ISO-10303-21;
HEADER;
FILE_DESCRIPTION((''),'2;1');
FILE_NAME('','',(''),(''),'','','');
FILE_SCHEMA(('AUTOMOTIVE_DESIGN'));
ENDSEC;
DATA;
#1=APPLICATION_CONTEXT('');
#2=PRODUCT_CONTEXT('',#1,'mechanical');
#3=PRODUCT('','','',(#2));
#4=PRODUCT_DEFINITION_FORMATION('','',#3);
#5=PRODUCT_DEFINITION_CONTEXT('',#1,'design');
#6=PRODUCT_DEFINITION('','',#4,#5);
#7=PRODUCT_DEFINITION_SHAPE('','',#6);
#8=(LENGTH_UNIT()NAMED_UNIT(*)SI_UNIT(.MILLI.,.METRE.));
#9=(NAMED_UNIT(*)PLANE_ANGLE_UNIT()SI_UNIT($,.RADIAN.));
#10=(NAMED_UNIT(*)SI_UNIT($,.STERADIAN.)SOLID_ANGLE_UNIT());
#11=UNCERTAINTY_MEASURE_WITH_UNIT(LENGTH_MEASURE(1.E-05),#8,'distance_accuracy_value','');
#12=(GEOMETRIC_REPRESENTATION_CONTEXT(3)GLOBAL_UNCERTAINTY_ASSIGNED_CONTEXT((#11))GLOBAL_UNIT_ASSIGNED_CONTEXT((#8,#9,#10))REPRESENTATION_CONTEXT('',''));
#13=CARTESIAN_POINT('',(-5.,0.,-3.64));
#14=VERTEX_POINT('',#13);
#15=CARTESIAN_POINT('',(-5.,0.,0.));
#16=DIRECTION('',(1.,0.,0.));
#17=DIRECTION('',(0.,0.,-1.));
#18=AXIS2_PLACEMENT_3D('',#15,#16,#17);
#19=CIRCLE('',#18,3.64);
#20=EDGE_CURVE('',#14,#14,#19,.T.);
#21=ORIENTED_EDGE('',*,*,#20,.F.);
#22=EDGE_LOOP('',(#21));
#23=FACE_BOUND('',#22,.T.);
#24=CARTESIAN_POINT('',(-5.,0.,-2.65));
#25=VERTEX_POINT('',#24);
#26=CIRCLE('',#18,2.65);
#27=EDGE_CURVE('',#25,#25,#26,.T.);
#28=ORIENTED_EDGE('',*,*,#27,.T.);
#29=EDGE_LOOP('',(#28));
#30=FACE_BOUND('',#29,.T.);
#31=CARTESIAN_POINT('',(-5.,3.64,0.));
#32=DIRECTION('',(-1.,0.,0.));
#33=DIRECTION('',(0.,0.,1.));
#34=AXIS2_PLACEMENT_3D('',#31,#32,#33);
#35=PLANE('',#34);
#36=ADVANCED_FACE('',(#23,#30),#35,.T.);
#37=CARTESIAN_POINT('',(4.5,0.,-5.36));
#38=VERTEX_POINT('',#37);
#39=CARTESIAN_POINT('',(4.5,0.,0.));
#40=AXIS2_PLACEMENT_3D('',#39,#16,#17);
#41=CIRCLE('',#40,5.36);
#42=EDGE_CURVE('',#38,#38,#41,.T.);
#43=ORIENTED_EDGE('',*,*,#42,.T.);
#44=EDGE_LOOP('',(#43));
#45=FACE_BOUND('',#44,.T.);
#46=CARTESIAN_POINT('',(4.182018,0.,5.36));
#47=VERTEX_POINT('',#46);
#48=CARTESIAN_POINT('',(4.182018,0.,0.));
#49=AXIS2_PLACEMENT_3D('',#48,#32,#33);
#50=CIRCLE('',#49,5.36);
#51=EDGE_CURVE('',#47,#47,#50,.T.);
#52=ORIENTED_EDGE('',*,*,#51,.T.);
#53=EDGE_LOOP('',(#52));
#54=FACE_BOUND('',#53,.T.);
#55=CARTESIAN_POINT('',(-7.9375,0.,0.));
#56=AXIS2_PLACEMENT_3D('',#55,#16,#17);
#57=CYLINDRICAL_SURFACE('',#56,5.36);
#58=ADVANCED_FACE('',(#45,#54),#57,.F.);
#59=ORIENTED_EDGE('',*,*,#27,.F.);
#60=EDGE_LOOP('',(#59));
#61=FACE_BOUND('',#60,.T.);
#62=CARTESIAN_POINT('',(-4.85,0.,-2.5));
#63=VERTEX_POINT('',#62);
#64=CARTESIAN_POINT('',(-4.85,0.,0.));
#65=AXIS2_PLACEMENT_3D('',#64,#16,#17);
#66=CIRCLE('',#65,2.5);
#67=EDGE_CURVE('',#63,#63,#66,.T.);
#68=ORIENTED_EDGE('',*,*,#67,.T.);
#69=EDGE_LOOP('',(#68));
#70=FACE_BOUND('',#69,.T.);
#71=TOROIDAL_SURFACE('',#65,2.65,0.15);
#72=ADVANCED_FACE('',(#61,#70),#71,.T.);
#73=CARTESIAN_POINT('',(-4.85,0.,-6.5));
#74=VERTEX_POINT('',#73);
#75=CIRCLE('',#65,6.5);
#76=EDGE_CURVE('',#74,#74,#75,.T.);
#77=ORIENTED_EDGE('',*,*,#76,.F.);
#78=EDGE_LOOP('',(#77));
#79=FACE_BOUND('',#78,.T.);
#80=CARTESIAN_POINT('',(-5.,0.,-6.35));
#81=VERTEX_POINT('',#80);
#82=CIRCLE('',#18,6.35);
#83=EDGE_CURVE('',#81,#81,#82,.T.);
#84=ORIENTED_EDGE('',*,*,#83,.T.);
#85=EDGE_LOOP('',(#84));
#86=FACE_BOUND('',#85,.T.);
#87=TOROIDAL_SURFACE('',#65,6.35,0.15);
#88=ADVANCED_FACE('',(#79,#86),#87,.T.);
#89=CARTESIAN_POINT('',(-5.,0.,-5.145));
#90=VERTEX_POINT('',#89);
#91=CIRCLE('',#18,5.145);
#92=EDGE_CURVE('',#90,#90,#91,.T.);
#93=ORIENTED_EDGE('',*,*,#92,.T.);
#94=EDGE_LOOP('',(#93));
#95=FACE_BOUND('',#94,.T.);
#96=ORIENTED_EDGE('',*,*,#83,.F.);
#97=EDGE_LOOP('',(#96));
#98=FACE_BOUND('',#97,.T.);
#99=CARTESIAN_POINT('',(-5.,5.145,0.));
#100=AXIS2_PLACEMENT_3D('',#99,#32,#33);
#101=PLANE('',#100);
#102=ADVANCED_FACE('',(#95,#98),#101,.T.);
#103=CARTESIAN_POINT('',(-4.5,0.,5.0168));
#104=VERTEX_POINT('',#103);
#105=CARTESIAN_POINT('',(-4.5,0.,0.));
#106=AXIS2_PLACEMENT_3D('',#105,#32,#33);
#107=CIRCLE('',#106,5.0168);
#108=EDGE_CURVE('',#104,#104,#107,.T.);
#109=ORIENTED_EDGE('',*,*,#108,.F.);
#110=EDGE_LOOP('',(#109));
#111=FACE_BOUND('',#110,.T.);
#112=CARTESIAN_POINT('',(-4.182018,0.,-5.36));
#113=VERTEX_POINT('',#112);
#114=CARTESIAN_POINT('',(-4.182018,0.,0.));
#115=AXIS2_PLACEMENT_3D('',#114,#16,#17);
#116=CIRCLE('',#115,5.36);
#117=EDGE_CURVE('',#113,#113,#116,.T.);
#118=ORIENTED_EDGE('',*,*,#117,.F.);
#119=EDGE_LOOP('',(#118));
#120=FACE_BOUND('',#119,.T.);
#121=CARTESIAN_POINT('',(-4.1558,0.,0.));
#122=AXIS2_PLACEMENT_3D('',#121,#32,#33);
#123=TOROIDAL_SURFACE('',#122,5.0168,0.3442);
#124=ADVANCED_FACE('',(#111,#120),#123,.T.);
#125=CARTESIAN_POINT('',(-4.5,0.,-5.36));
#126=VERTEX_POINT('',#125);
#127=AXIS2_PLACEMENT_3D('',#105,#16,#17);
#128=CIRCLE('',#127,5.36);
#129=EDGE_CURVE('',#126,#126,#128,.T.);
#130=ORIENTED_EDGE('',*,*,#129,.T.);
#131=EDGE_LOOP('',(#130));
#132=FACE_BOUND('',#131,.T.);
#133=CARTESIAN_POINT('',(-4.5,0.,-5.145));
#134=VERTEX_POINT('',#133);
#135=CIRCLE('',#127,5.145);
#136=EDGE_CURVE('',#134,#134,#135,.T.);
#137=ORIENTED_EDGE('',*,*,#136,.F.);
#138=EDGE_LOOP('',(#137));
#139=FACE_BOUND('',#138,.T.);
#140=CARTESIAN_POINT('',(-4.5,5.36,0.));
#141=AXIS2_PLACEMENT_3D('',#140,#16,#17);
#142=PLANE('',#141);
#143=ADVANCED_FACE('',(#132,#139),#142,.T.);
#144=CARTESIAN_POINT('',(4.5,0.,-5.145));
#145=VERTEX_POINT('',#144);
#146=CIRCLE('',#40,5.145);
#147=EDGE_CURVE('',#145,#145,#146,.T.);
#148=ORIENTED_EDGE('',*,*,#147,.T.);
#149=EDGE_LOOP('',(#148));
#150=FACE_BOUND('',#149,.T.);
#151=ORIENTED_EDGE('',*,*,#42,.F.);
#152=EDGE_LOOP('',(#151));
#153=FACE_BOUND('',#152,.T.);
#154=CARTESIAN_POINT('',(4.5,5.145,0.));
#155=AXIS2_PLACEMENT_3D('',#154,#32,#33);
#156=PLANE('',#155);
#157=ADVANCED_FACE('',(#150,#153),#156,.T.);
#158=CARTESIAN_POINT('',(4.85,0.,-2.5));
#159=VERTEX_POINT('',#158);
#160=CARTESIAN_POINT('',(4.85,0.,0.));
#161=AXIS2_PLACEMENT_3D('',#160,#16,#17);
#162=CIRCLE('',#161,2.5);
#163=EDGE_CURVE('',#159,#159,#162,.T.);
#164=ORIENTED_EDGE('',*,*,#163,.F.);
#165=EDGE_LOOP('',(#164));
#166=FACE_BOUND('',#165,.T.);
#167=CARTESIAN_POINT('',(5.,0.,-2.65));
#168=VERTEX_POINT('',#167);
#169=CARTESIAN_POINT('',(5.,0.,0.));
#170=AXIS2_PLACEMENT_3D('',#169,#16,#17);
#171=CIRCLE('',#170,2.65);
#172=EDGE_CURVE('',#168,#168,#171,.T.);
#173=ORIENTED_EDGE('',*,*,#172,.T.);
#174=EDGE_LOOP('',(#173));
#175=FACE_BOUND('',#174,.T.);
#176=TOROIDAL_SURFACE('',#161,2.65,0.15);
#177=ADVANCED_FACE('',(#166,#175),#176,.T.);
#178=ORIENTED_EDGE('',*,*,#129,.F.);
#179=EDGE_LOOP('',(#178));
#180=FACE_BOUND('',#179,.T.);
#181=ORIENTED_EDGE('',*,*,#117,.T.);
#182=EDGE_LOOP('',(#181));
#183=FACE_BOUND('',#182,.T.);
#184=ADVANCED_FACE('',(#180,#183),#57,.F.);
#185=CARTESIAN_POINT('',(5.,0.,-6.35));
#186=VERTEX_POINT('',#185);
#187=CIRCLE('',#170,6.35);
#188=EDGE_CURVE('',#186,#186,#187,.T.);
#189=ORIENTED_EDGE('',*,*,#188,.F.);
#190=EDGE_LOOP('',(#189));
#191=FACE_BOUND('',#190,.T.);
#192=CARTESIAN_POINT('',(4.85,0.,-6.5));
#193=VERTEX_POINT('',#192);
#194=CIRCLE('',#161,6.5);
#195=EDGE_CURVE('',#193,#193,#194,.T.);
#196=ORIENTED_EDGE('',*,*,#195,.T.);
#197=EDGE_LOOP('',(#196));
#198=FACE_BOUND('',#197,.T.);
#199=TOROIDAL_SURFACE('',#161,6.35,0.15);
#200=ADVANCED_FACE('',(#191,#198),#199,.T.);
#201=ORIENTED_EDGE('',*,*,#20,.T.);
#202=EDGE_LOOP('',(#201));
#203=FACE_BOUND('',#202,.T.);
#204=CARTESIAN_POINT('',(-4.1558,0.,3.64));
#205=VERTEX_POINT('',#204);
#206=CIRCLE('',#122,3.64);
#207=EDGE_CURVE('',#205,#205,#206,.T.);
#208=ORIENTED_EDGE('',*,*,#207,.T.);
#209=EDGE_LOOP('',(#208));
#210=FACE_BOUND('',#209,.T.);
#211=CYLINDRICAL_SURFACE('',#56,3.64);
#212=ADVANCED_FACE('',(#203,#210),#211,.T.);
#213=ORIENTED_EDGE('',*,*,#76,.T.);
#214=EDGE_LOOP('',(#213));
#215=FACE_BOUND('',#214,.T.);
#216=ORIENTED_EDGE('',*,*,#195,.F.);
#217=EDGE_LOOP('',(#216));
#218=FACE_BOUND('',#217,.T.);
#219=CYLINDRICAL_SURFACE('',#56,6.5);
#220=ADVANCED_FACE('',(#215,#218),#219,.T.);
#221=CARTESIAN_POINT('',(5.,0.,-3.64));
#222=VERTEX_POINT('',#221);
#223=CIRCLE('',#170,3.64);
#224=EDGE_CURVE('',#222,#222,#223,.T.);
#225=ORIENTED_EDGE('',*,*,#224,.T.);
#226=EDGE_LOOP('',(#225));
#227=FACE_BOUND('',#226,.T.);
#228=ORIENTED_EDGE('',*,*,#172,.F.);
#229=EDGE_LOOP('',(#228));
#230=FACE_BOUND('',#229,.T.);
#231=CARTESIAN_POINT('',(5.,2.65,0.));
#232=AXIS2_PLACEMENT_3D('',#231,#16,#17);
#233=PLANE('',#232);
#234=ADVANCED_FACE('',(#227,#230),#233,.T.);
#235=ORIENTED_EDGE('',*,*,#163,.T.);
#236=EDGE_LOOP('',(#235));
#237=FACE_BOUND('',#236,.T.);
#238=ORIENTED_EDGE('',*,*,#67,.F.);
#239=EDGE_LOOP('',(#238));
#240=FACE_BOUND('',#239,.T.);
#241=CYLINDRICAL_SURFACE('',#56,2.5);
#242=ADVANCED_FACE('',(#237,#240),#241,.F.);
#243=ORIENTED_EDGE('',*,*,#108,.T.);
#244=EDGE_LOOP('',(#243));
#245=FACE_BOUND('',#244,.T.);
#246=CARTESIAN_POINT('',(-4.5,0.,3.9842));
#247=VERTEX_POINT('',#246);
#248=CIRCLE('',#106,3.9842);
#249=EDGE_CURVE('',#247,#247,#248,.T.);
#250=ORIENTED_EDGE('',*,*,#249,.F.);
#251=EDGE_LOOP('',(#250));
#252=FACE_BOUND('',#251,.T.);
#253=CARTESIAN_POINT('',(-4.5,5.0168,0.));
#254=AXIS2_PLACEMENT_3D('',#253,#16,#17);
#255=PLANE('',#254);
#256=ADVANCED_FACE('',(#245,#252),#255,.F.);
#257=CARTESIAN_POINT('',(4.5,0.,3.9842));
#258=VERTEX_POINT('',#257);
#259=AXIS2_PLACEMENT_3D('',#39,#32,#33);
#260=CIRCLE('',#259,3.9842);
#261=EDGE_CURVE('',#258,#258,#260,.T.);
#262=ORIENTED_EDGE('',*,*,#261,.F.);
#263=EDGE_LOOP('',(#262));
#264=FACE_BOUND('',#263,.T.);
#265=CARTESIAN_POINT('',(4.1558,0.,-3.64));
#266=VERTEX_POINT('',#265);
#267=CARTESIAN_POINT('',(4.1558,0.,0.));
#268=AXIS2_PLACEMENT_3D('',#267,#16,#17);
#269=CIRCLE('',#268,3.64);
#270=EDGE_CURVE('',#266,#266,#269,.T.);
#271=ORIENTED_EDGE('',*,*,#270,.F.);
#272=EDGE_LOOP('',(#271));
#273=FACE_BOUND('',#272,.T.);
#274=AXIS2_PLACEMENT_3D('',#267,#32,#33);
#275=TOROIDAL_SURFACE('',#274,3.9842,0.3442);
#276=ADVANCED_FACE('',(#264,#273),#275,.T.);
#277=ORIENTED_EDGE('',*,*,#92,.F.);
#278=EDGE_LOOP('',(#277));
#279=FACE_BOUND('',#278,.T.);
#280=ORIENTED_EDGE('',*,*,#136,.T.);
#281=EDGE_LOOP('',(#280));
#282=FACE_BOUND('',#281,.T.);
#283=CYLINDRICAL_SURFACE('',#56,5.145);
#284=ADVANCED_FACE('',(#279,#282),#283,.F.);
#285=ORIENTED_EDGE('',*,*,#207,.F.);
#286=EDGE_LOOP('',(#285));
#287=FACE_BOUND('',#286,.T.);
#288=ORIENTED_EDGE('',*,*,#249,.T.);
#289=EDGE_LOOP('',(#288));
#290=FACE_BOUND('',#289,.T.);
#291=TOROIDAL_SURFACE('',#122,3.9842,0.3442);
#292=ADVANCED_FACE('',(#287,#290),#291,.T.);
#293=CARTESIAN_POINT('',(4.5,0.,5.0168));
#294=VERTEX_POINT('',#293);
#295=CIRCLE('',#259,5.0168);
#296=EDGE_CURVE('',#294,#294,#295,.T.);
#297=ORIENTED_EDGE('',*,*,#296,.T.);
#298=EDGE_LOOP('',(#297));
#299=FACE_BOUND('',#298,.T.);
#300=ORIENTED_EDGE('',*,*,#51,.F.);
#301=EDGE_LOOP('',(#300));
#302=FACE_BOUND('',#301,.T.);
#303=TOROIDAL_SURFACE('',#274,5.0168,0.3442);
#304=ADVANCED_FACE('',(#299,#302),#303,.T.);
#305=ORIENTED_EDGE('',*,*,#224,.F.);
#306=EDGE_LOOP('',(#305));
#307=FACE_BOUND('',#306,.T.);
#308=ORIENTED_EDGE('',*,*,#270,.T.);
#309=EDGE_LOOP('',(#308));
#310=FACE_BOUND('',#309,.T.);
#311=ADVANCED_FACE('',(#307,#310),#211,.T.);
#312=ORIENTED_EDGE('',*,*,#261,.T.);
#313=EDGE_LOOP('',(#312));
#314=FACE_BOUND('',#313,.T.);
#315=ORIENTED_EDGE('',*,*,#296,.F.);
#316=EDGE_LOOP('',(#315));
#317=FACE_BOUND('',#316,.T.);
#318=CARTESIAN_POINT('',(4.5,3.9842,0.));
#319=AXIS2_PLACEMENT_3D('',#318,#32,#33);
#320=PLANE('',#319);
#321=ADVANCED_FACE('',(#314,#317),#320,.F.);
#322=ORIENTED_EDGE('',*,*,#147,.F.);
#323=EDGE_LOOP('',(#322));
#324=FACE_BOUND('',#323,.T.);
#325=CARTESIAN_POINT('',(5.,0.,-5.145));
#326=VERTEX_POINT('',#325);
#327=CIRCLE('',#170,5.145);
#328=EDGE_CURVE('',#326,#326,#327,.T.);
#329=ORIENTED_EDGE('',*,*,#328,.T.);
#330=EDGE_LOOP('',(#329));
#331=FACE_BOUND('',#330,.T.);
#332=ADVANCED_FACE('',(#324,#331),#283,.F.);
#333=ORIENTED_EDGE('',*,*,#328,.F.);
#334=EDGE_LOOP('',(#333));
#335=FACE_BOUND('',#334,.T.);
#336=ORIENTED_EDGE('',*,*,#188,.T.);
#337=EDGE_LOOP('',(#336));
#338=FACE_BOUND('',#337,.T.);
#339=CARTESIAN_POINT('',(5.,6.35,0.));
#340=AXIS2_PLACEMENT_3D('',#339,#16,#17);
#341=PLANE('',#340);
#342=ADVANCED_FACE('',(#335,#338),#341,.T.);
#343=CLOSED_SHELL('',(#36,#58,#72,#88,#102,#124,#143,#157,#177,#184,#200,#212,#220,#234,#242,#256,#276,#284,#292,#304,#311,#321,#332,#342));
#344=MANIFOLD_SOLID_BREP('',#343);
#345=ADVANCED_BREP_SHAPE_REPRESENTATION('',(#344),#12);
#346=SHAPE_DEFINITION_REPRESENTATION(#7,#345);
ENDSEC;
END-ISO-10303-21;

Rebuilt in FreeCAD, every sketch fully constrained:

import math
import FreeCAD as App
import Part
import Sketcher

V = App.Vector
Q = App.Units.Quantity

doc = App.newDocument("Part")
body = doc.addObject("PartDesign::Body", "Body")

sketch1 = body.newObject("Sketcher::SketchObject", "Sketch")
sketch1.AttachmentSupport = (doc.getObject("XY_Plane"), [""])
sketch1.MapMode = "FlatFace"
sketch1.addGeometry(Part.LineSegment(V(-4.5, 5.145, 0), V(-4.5, 5.36, 0)), False)
sketch1.addGeometry(Part.LineSegment(V(-4.5, 5.36, 0), V(4.5, 5.36, 0)), False)
sketch1.addGeometry(Part.LineSegment(V(4.5, 5.36, 0), V(4.5, 5.145, 0)), False)
sketch1.addGeometry(Part.LineSegment(V(4.5, 5.145, 0), V(5, 5.145, 0)), False)
sketch1.addGeometry(Part.LineSegment(V(5, 5.145, 0), V(5, 6.35, 0)), False)
sketch1.addGeometry(Part.ArcOfCircle(Part.Circle(V(4.85, 6.35, 0), V(0, 0, 1), 0.15), math.radians(0), math.radians(90)), False)
sketch1.addGeometry(Part.LineSegment(V(4.85, 6.5, 0), V(-4.85, 6.5, 0)), False)
sketch1.addGeometry(Part.ArcOfCircle(Part.Circle(V(-4.85, 6.35, 0), V(0, 0, 1), 0.15), math.radians(90), math.radians(180)), False)
sketch1.addGeometry(Part.LineSegment(V(-5, 6.35, 0), V(-5, 5.145, 0)), False)
sketch1.addGeometry(Part.LineSegment(V(-5, 5.145, 0), V(-4.5, 5.145, 0)), False)
sketch1.addConstraint(Sketcher.Constraint("Coincident", 0, 2, 1, 1))
sketch1.addConstraint(Sketcher.Constraint("Coincident", 1, 2, 2, 1))
sketch1.addConstraint(Sketcher.Constraint("Coincident", 2, 2, 3, 1))
sketch1.addConstraint(Sketcher.Constraint("Coincident", 3, 2, 4, 1))
sketch1.addConstraint(Sketcher.Constraint("Tangent", 4, 2, 5, 1))
sketch1.addConstraint(Sketcher.Constraint("Tangent", 5, 2, 6, 1))
sketch1.addConstraint(Sketcher.Constraint("Tangent", 6, 2, 7, 1))
sketch1.addConstraint(Sketcher.Constraint("Tangent", 7, 2, 8, 1))
sketch1.addConstraint(Sketcher.Constraint("Coincident", 8, 2, 9, 1))
sketch1.addConstraint(Sketcher.Constraint("Coincident", 9, 2, 0, 1))
sketch1.addConstraint(Sketcher.Constraint("Vertical", 0))
sketch1.addConstraint(Sketcher.Constraint("Horizontal", 1))
sketch1.addConstraint(Sketcher.Constraint("Vertical", 2))
sketch1.addConstraint(Sketcher.Constraint("Horizontal", 3))
sketch1.addConstraint(Sketcher.Constraint("Vertical", 4))
sketch1.addConstraint(Sketcher.Constraint("Horizontal", 6))
sketch1.addConstraint(Sketcher.Constraint("Vertical", 8))
sketch1.addConstraint(Sketcher.Constraint("Horizontal", 9))
sketch1.addConstraint(Sketcher.Constraint("Equal", 5, 7))
sketch1.addConstraint(Sketcher.Constraint("Symmetric", 3, 2, 8, 2, -2))
sketch1.addConstraint(Sketcher.Constraint("Equal", 3, 9))
sketch1.addConstraint(Sketcher.Constraint("DistanceX", 1, 1, 1, 2, Q("9 mm")))
sketch1.addConstraint(Sketcher.Constraint("Radius", 5, Q("0.15 mm")))
sketch1.addConstraint(Sketcher.Constraint("DistanceX", 3, 1, 3, 2, Q("0.5 mm")))
sketch1.addConstraint(Sketcher.Constraint("DistanceY", -1, 1, 5, 2, Q("6.5 mm")))
sketch1.addConstraint(Sketcher.Constraint("DistanceY", 0, 1, 0, 2, Q("0.215 mm")))
sketch1.addConstraint(Sketcher.Constraint("DistanceY", 4, 1, 4, 2, Q("1.205 mm")))
revolution = body.newObject("PartDesign::Revolution", "Revolution")
revolution.Profile = sketch1
revolution.ReferenceAxis = (sketch1, ["H_Axis"])
revolution.Angle = 360

sketch2 = body.newObject("Sketcher::SketchObject", "Sketch001")
sketch2.AttachmentSupport = (doc.getObject("XY_Plane"), [""])
sketch2.MapMode = "FlatFace"
sketch2.addGeometry(Part.LineSegment(V(-4.5, 5.0168, 0), V(-4.5, 3.9842, 0)), False)
sketch2.addGeometry(Part.ArcOfCircle(Part.Circle(V(-4.1558, 3.9842, 0), V(0, 0, 1), 0.3442), math.radians(180), math.radians(270)), False)
sketch2.addGeometry(Part.LineSegment(V(-4.1558, 3.64, 0), V(4.1558, 3.64, 0)), False)
sketch2.addGeometry(Part.ArcOfCircle(Part.Circle(V(4.1558, 3.9842, 0), V(0, 0, 1), 0.3442), math.radians(-90), math.radians(0)), False)
sketch2.addGeometry(Part.LineSegment(V(4.5, 3.9842, 0), V(4.5, 5.0168, 0)), False)
sketch2.addGeometry(Part.ArcOfCircle(Part.Circle(V(4.1558, 5.0168, 0), V(0, 0, 1), 0.3442), math.radians(0), math.radians(90)), False)
sketch2.addGeometry(Part.LineSegment(V(4.1558, 5.361, 0), V(-4.1558, 5.361, 0)), False)
sketch2.addGeometry(Part.ArcOfCircle(Part.Circle(V(-4.1558, 5.0168, 0), V(0, 0, 1), 0.3442), math.radians(90), math.radians(180)), False)
sketch2.addConstraint(Sketcher.Constraint("Tangent", 0, 2, 1, 1))
sketch2.addConstraint(Sketcher.Constraint("Tangent", 1, 2, 2, 1))
sketch2.addConstraint(Sketcher.Constraint("Tangent", 2, 2, 3, 1))
sketch2.addConstraint(Sketcher.Constraint("Tangent", 3, 2, 4, 1))
sketch2.addConstraint(Sketcher.Constraint("Tangent", 4, 2, 5, 1))
sketch2.addConstraint(Sketcher.Constraint("Tangent", 5, 2, 6, 1))
sketch2.addConstraint(Sketcher.Constraint("Tangent", 6, 2, 7, 1))
sketch2.addConstraint(Sketcher.Constraint("Tangent", 7, 2, 0, 1))
sketch2.addConstraint(Sketcher.Constraint("Vertical", 0))
sketch2.addConstraint(Sketcher.Constraint("Horizontal", 2))
sketch2.addConstraint(Sketcher.Constraint("Vertical", 4))
sketch2.addConstraint(Sketcher.Constraint("Horizontal", 6))
sketch2.addConstraint(Sketcher.Constraint("Equal", 1, 3))
sketch2.addConstraint(Sketcher.Constraint("Equal", 3, 5))
sketch2.addConstraint(Sketcher.Constraint("Equal", 5, 7))
sketch2.addConstraint(Sketcher.Constraint("DistanceX", 0, 2, -1, 1, Q("4.5 mm")))
sketch2.addConstraint(Sketcher.Constraint("DistanceX", -1, 1, 3, 2, Q("4.5 mm")))
sketch2.addConstraint(Sketcher.Constraint("Radius", 1, Q("0.3442 mm")))
sketch2.addConstraint(Sketcher.Constraint("DistanceY", -1, 1, 1, 2, Q("3.64 mm")))
sketch2.addConstraint(Sketcher.Constraint("DistanceY", 0, 2, 0, 1, Q("1.0326 mm")))
revolution2 = body.newObject("PartDesign::Revolution", "Revolution001")
revolution2.Profile = sketch2
revolution2.ReferenceAxis = (sketch2, ["H_Axis"])
revolution2.Angle = 360

sketch3 = body.newObject("Sketcher::SketchObject", "Sketch002")
sketch3.AttachmentSupport = (doc.getObject("XY_Plane"), [""])
sketch3.MapMode = "FlatFace"
sketch3.addGeometry(Part.LineSegment(V(-5, 3.64, 0), V(-5, 2.65, 0)), False)
sketch3.addGeometry(Part.ArcOfCircle(Part.Circle(V(-4.85, 2.65, 0), V(0, 0, 1), 0.15), math.radians(-180), math.radians(-90)), False)
sketch3.addGeometry(Part.LineSegment(V(-4.85, 2.5, 0), V(4.85, 2.5, 0)), False)
sketch3.addGeometry(Part.ArcOfCircle(Part.Circle(V(4.85, 2.65, 0), V(0, 0, 1), 0.15), math.radians(-90), math.radians(0)), False)
sketch3.addGeometry(Part.LineSegment(V(5, 2.65, 0), V(5, 3.64, 0)), False)
sketch3.addGeometry(Part.LineSegment(V(5, 3.64, 0), V(-5, 3.64, 0)), False)
sketch3.addConstraint(Sketcher.Constraint("Tangent", 0, 2, 1, 1))
sketch3.addConstraint(Sketcher.Constraint("Tangent", 1, 2, 2, 1))
sketch3.addConstraint(Sketcher.Constraint("Tangent", 2, 2, 3, 1))
sketch3.addConstraint(Sketcher.Constraint("Tangent", 3, 2, 4, 1))
sketch3.addConstraint(Sketcher.Constraint("Coincident", 4, 2, 5, 1))
sketch3.addConstraint(Sketcher.Constraint("Coincident", 5, 2, 0, 1))
sketch3.addConstraint(Sketcher.Constraint("Vertical", 0))
sketch3.addConstraint(Sketcher.Constraint("Horizontal", 2))
sketch3.addConstraint(Sketcher.Constraint("Vertical", 4))
sketch3.addConstraint(Sketcher.Constraint("Horizontal", 5))
sketch3.addConstraint(Sketcher.Constraint("Equal", 1, 3))
sketch3.addConstraint(Sketcher.Constraint("DistanceX", 5, 2, 5, 1, Q("10 mm")))
sketch3.addConstraint(Sketcher.Constraint("Radius", 1, Q("0.15 mm")))
sketch3.addConstraint(Sketcher.Constraint("DistanceX", 0, 2, -1, 1, Q("5 mm")))
sketch3.addConstraint(Sketcher.Constraint("DistanceY", 0, 2, 0, 1, Q("0.99 mm")))
sketch3.addConstraint(Sketcher.Constraint("DistanceY", -1, 1, 1, 2, Q("2.5 mm")))
revolution3 = body.newObject("PartDesign::Revolution", "Revolution002")
revolution3.Profile = sketch3
revolution3.ReferenceAxis = (sketch3, ["H_Axis"])
revolution3.Angle = 360

doc.recompute()
